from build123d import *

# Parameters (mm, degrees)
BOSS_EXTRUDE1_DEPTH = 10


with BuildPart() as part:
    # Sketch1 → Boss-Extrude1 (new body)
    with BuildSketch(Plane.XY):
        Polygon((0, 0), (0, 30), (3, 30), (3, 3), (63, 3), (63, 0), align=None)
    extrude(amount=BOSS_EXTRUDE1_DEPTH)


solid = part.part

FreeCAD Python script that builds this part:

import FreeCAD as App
import Part
import Sketcher


def add_polygon(sketch, points):
    """Adds a closed chain of lines whose ends are joined by coincident constraints."""
    first, n = sketch.GeometryCount, len(points)
    for a, b in zip(points, points[1:] + points[:1]):
        sketch.addGeometry(Part.LineSegment(App.Vector(*a, 0), App.Vector(*b, 0)), False)
    for i in range(n):
        sketch.addConstraint(Sketcher.Constraint("Coincident", first + i, 2, first + (i + 1) % n, 1))

doc = App.newDocument("Part")
body = doc.addObject("PartDesign::Body", "Body")

# Sketch on XY plane
sketch1 = doc.addObject("Sketcher::SketchObject", "Sketch")
body.addObject(sketch1)
sketch1.AttachmentSupport = (doc.XY_Plane, [""])
sketch1.MapMode = "FlatFace"
add_polygon(sketch1, [(0, 30), (0, 0), (63, 0), (63, 3), (3, 3), (3, 30)])  # lines 0-5
sketch1.addConstraint([
    Sketcher.Constraint("Vertical", 0),
    Sketcher.Constraint("Horizontal", 1),
    Sketcher.Constraint("Vertical", 2),
    Sketcher.Constraint("Horizontal", 3),
    Sketcher.Constraint("Vertical", 4),
    Sketcher.Constraint("Horizontal", 5),
    Sketcher.Constraint("Coincident", 0, 2, -1, 1),
    Sketcher.Constraint("Equal", 5, 2),
    Sketcher.Constraint("DistanceX", 1, 1, 1, 2, 63.0),
    Sketcher.Constraint("DistanceX", 3, 2, 3, 1, 60.0),
    Sketcher.Constraint("DistanceY", 0, 2, 0, 1, 30.0),
])
pad1 = doc.addObject("PartDesign::Pad", "Pad")
body.addObject(pad1)
pad1.Profile = sketch1
pad1.Length = 10

doc.recompute()
